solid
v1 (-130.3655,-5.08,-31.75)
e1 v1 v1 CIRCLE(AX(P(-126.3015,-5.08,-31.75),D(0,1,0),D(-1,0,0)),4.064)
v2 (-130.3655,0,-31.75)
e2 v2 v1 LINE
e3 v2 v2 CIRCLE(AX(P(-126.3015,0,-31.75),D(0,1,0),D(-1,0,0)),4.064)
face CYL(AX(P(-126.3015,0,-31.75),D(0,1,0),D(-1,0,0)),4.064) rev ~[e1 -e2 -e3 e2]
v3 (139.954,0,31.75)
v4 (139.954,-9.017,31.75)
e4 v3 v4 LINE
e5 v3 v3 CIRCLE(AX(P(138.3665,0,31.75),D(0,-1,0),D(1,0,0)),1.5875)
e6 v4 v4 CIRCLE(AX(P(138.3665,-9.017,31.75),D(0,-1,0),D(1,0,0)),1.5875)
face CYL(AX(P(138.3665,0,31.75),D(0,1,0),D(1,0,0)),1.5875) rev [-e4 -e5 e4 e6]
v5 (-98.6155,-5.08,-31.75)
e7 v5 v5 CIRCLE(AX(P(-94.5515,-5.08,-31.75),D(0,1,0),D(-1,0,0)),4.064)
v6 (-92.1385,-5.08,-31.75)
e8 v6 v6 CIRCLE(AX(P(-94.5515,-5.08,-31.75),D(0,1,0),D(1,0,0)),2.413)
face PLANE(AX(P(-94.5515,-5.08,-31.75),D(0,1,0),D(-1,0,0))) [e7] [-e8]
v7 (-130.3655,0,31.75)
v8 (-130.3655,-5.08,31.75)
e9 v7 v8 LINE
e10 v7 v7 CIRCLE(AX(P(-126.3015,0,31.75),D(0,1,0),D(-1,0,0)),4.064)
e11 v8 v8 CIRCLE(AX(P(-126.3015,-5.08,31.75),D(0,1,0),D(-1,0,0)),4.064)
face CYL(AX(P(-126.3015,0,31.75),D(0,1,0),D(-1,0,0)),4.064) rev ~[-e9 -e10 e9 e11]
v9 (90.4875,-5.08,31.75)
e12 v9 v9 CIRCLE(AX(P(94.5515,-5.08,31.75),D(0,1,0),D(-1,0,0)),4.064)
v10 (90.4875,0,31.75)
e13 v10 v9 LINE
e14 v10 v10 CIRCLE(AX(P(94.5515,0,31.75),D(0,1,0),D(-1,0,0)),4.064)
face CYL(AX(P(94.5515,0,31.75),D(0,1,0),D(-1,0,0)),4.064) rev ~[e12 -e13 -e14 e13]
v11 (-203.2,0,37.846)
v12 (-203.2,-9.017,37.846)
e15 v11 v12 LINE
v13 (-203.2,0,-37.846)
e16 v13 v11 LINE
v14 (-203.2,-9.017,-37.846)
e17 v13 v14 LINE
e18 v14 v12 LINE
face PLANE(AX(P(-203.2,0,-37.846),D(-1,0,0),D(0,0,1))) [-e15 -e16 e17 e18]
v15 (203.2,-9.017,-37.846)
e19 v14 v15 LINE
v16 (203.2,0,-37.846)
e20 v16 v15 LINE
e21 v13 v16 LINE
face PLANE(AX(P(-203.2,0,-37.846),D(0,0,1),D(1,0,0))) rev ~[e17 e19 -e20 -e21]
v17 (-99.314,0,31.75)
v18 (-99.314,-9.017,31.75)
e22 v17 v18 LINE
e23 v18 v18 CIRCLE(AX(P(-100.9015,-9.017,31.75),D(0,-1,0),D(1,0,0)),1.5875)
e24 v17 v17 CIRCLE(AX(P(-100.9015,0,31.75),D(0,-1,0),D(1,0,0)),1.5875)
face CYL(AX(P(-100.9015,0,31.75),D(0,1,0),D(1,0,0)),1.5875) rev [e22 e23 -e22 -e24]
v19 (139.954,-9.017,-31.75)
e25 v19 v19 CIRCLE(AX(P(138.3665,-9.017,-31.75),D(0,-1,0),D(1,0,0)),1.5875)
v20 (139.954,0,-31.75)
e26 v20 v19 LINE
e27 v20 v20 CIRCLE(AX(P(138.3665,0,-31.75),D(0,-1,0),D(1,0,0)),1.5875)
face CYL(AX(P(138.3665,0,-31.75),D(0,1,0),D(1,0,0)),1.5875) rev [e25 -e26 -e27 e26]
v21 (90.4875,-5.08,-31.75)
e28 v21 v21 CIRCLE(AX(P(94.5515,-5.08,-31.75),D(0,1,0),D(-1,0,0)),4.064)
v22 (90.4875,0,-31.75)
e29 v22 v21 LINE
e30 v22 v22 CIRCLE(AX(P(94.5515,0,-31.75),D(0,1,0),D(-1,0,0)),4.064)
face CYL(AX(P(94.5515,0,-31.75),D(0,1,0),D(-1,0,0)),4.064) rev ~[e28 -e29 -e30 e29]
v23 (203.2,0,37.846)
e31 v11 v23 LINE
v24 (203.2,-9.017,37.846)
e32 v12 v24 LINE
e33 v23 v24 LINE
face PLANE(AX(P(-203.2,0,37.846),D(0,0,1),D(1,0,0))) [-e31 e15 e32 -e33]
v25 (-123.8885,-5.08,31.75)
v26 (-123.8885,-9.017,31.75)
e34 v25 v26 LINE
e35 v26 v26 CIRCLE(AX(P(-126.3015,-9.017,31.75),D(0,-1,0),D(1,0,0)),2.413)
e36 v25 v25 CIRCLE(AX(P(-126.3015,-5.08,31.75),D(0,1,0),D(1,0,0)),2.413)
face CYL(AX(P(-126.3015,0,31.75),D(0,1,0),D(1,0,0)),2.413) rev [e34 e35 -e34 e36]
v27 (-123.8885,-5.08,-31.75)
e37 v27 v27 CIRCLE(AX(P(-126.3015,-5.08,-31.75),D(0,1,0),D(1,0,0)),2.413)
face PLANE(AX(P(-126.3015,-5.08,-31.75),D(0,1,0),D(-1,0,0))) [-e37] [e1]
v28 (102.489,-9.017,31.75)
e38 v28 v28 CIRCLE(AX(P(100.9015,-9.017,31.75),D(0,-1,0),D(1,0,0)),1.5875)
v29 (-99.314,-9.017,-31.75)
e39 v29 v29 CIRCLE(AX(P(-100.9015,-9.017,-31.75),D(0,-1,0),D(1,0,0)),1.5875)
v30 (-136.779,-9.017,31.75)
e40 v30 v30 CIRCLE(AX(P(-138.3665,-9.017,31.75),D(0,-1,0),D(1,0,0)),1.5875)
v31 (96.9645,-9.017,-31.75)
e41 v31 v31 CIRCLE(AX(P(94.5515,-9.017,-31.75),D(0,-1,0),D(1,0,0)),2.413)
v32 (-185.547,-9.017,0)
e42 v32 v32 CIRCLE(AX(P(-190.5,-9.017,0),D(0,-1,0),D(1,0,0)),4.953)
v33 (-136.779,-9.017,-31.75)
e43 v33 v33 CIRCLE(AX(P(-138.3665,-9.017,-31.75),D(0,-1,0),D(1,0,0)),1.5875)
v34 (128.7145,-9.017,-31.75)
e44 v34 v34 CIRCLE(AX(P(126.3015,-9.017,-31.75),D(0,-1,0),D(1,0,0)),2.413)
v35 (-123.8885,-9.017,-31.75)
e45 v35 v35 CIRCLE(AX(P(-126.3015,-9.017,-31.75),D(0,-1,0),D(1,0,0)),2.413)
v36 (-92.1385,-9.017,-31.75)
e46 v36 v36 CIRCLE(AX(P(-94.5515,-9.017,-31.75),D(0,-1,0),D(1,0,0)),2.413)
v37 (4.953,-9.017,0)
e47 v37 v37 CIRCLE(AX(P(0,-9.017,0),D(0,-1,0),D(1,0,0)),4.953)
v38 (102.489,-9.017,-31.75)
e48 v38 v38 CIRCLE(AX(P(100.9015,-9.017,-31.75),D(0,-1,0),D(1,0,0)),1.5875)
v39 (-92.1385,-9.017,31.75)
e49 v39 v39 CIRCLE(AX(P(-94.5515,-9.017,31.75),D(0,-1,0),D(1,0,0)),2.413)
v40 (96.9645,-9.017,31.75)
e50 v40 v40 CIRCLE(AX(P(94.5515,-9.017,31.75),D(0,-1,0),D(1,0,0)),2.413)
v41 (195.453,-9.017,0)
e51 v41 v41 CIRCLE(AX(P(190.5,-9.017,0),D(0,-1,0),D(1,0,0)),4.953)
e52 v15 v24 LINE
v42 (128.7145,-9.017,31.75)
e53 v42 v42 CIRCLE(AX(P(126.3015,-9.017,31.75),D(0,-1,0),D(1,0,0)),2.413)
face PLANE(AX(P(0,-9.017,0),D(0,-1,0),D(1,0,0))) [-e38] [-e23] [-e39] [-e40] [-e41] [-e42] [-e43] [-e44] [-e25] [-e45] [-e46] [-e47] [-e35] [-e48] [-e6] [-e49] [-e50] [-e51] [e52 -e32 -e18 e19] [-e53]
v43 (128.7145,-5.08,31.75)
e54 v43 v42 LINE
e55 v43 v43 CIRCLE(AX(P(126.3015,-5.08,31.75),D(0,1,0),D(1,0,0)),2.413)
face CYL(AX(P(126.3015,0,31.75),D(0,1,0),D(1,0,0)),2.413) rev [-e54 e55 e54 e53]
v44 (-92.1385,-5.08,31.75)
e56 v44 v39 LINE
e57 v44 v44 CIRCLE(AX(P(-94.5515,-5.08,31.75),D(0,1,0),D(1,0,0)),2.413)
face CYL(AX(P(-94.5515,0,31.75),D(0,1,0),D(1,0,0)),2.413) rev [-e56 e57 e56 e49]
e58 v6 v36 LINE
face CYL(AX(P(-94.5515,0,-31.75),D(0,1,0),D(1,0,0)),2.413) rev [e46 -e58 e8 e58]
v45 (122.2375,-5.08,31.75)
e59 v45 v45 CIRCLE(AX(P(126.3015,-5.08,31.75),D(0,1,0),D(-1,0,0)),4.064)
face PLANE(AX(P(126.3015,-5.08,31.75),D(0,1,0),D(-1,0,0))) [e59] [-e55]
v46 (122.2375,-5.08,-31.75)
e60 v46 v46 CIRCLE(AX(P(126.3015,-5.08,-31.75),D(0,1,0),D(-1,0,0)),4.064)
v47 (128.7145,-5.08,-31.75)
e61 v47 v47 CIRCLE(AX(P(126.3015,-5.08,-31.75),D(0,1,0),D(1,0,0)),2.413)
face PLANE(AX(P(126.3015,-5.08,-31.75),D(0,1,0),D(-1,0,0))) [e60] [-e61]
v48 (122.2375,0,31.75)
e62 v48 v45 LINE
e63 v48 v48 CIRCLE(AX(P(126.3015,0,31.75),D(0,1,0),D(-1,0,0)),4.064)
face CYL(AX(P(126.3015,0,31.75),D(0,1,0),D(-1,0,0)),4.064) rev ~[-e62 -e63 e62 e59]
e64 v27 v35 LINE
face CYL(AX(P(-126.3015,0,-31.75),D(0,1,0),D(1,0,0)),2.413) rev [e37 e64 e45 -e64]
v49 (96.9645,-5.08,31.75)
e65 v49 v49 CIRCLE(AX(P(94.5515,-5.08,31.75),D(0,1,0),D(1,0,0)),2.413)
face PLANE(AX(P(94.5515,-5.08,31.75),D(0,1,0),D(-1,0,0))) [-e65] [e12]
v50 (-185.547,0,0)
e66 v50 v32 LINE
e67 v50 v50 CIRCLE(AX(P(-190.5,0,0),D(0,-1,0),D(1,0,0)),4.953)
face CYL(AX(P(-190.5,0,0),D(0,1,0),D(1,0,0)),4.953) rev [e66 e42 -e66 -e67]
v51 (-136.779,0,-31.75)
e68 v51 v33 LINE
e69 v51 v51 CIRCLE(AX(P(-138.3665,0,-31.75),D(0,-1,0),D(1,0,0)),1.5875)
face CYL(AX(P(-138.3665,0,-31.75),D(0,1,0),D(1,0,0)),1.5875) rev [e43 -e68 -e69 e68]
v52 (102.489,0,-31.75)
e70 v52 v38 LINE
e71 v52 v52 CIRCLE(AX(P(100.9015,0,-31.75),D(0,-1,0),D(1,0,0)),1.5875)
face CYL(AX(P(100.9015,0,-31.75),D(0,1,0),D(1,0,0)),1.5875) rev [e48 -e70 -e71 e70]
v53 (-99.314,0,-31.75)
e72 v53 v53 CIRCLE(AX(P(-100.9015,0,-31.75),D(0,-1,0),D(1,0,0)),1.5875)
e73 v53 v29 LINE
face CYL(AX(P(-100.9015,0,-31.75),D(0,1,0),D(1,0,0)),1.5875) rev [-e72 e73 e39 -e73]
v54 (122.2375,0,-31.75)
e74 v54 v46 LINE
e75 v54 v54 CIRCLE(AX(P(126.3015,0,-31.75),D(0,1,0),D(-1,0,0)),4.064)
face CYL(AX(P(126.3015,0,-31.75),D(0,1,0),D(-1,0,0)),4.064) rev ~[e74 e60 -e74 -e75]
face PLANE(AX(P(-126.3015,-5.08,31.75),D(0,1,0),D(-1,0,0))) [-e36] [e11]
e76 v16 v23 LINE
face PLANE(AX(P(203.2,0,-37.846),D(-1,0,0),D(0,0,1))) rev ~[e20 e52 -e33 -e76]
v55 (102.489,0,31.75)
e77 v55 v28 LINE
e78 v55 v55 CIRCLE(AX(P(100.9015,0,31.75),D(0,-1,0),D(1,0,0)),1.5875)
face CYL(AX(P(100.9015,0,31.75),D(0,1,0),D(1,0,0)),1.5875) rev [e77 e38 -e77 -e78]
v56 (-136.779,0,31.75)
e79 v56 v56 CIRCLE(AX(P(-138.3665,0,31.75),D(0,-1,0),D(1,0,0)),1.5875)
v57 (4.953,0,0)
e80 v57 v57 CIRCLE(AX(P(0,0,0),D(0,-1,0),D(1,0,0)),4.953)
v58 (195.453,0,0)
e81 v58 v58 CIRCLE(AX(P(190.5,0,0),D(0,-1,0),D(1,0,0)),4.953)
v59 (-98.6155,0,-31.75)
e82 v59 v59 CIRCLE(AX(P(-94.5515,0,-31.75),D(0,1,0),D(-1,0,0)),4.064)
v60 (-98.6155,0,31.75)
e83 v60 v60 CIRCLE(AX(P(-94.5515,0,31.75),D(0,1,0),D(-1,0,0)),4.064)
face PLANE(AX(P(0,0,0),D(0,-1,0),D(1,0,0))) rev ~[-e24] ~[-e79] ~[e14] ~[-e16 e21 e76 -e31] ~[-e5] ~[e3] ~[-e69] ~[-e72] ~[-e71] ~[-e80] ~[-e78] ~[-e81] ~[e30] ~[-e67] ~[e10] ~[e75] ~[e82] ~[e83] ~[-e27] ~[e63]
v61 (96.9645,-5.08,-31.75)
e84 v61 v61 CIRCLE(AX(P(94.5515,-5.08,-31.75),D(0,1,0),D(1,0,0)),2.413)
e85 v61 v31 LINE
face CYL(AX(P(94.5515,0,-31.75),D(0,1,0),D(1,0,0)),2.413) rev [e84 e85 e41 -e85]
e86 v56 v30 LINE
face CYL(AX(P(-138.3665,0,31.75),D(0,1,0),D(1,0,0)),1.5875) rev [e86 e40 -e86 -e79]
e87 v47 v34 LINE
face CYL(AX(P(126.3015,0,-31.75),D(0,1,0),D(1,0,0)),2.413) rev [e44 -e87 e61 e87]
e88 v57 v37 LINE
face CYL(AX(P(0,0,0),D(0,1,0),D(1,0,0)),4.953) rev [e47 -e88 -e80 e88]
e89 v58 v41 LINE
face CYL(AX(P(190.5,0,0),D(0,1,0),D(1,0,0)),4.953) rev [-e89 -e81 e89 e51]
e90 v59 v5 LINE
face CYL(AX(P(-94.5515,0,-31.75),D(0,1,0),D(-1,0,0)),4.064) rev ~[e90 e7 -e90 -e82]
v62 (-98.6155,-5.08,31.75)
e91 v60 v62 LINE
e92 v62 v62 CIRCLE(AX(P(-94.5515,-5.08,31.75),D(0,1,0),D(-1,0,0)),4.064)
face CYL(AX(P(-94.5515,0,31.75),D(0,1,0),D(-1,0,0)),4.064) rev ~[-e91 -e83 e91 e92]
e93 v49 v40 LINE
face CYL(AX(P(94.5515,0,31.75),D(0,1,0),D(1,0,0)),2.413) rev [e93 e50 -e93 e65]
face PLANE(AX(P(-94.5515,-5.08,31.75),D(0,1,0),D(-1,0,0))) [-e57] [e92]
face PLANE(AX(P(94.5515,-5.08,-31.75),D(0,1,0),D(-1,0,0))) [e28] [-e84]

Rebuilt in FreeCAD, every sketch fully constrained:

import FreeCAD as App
import Part
import Sketcher
from FreeCAD import Vector
Q = App.Units.Quantity


def add_polygon(sketch, points):
    """Adds a closed chain of lines whose ends are joined by coincident constraints."""
    first, n = sketch.GeometryCount, len(points)
    for a, b in zip(points, points[1:] + points[:1]):
        sketch.addGeometry(Part.LineSegment(App.Vector(*a, 0), App.Vector(*b, 0)), False)
    for i in range(n):
        sketch.addConstraint(Sketcher.Constraint("Coincident", first + i, 2, first + (i + 1) % n, 1))

doc = App.newDocument("Part")
body = doc.addObject("PartDesign::Body", "Body")

# Sketch on XZ plane
sketch1 = body.newObject("Sketcher::SketchObject", "Sketch")
sketch1.AttachmentSupport = (doc.getObject("XZ_Plane"), [""])
sketch1.MapMode = "FlatFace"
add_polygon(sketch1, [(-203.2, 37.8), (-203.2, -37.8), (203.2, -37.8), (203.2, 37.8)])  # lines 0-3
sketch1.addGeometry(Part.Circle(Vector(-138.4, -31.8, 0), Vector(0, 0, 1), 1.6), False)  # 4
sketch1.addGeometry(Part.Circle(Vector(-126.3, -31.8, 0), Vector(0, 0, 1), 2.4), False)  # 5
sketch1.addGeometry(Part.Circle(Vector(-100.9, -31.8, 0), Vector(0, 0, 1), 1.6), False)  # 6
sketch1.addGeometry(Part.Circle(Vector(-94.6, -31.8, 0), Vector(0, 0, 1), 2.4), False)  # 7
sketch1.addGeometry(Part.Circle(Vector(94.6, -31.8, 0), Vector(0, 0, 1), 2.4), False)  # 8
sketch1.addGeometry(Part.Circle(Vector(100.9, -31.8, 0), Vector(0, 0, 1), 1.6), False)  # 9
sketch1.addGeometry(Part.Circle(Vector(126.3, -31.8, 0), Vector(0, 0, 1), 2.4), False)  # 10
sketch1.addGeometry(Part.Circle(Vector(138.4, -31.8, 0), Vector(0, 0, 1), 1.6), False)  # 11
sketch1.addGeometry(Part.Circle(Vector(-190.5, 0, 0), Vector(0, 0, 1), 5), False)  # 12
sketch1.addGeometry(Part.Circle(Vector(-138.4, 31.8, 0), Vector(0, 0, 1), 1.6), False)  # 13
sketch1.addGeometry(Part.Circle(Vector(-126.3, 31.8, 0), Vector(0, 0, 1), 2.4), False)  # 14
sketch1.addGeometry(Part.Circle(Vector(-100.9, 31.8, 0), Vector(0, 0, 1), 1.6), False)  # 15
sketch1.addGeometry(Part.Circle(Vector(-94.6, 31.8, 0), Vector(0, 0, 1), 2.4), False)  # 16
sketch1.addGeometry(Part.Circle(Vector(0, 0, 0), Vector(0, 0, 1), 5), False)  # 17
sketch1.addGeometry(Part.Circle(Vector(190.5, 0, 0), Vector(0, 0, 1), 5), False)  # 18
sketch1.addGeometry(Part.Circle(Vector(94.6, 31.8, 0), Vector(0, 0, 1), 2.4), False)  # 19
sketch1.addGeometry(Part.Circle(Vector(100.9, 31.8, 0), Vector(0, 0, 1), 1.6), False)  # 20
sketch1.addGeometry(Part.Circle(Vector(126.3, 31.8, 0), Vector(0, 0, 1), 2.4), False)  # 21
sketch1.addGeometry(Part.Circle(Vector(138.4, 31.8, 0), Vector(0, 0, 1), 1.6), False)  # 22
sketch1.addConstraint([
    Sketcher.Constraint("Vertical", 0),
    Sketcher.Constraint("Horizontal", 1),
    Sketcher.Constraint("Vertical", 2),
    Sketcher.Constraint("Horizontal", 3),
    Sketcher.Constraint("Coincident", 17, 3, -1, 1),
    Sketcher.Constraint("Equal", 4, 6),
    Sketcher.Constraint("Equal", 5, 7),
    Sketcher.Constraint("Equal", 7, 8),
    Sketcher.Constraint("Equal", 6, 9),
    Sketcher.Constraint("Equal", 8, 10),
    Sketcher.Constraint("Equal", 9, 11),
    Sketcher.Constraint("Equal", 11, 13),
    Sketcher.Constraint("Equal", 10, 14),
    Sketcher.Constraint("Equal", 13, 15),
    Sketcher.Constraint("Equal", 14, 16),
    Sketcher.Constraint("Equal", 12, 17),
    Sketcher.Constraint("Equal", 17, 18),
    Sketcher.Constraint("Equal", 16, 19),
    Sketcher.Constraint("Equal", 15, 20),
    Sketcher.Constraint("Equal", 19, 21),
    Sketcher.Constraint("Equal", 20, 22),
    Sketcher.Constraint("Symmetric", 11, 3, 13, 3, -1, 1),
    Sketcher.Constraint("Symmetric", 10, 3, 14, 3, -1, 1),
    Sketcher.Constraint("Symmetric", 9, 3, 15, 3, -1, 1),
    Sketcher.Constraint("Symmetric", 8, 3, 16, 3, -1, 1),
    Sketcher.Constraint("Symmetric", 12, 3, 18, 3, -1, 1),
    Sketcher.Constraint("Symmetric", 7, 3, 19, 3, -1, 1),
    Sketcher.Constraint("Symmetric", 6, 3, 20, 3, -1, 1),
    Sketcher.Constraint("Symmetric", 5, 3, 21, 3, -1, 1),
    Sketcher.Constraint("Symmetric", 4, 3, 22, 3, -1, 1),
    Sketcher.Constraint("Symmetric", 0, 2, 2, 2, -1, 1),
    Sketcher.Constraint("Symmetric", 7, 3, 8, 3, -2),
    Sketcher.Constraint("Symmetric", 6, 3, 9, 3, -2),
    Sketcher.Constraint("Symmetric", 5, 3, 10, 3, -2),
    Sketcher.Constraint("Symmetric", 4, 3, 11, 3, -2),
    Sketcher.Constraint("PointOnObject", 12, 3, -1),
    Sketcher.Constraint("Horizontal", 4, 3, 5, 3),
    Sketcher.Constraint("Horizontal", 5, 3, 6, 3),
    Sketcher.Constraint("Horizontal", 6, 3, 7, 3),
    Sketcher.Constraint("Diameter", 5, Q("0.19 in")),
    Sketcher.Constraint("Diameter", 12, Q("0.39 in")),
    Sketcher.Constraint("DistanceX", 1, 1, 1, 2, Q("16 in")),
    Sketcher.Constraint("Diameter", 4, Q("0.125 in")),
    Sketcher.Constraint("DistanceX", 5, 3, 6, 3, Q("1 in")),
    Sketcher.Constraint("DistanceY", 0, 2, 0, 1, Q("2.98 in")),
    Sketcher.Constraint("DistanceX", 12, 3, -1, 1, Q("7.5 in")),
    Sketcher.Constraint("DistanceY", 4, 3, 13, 3, Q("2.5 in")),
    Sketcher.Constraint("DistanceX", 6, 3, 7, 3, Q("0.25 in")),
    Sketcher.Constraint("DistanceX", 4, 3, 8, 3, Q("9.17 in")),
    Sketcher.Constraint("DistanceX", 4, 3, 5, 3, Q("0.475 in")),
])
pad1 = body.newObject("PartDesign::Pad", "Pad")
pad1.Profile = sketch1
pad1.Length = Q("0.355 in")

# Sketch on XZ plane
sketch2 = body.newObject("Sketcher::SketchObject", "Sketch001")
sketch2.AttachmentSupport = (doc.getObject("XZ_Plane"), [""])
sketch2.MapMode = "FlatFace"
sketch2.addGeometry([
    Part.Circle(Vector(-126.3, 31.8, 0), Vector(0, 0, 1), 4.1),  # 0
    Part.Circle(Vector(-94.6, 31.8, 0), Vector(0, 0, 1), 4.1),  # 1
    Part.Circle(Vector(-126.3, -31.8, 0), Vector(0, 0, 1), 4.1),  # 2
    Part.Circle(Vector(-94.6, -31.8, 0), Vector(0, 0, 1), 4.1),  # 3
    Part.Circle(Vector(126.3, 31.8, 0), Vector(0, 0, 1), 4.1),  # 4
    Part.Circle(Vector(94.6, 31.8, 0), Vector(0, 0, 1), 4.1),  # 5
    Part.Circle(Vector(94.6, -31.8, 0), Vector(0, 0, 1), 4.1),  # 6
    Part.Circle(Vector(126.3, -31.8, 0), Vector(0, 0, 1), 4.1),  # 7
], False)
sketch2.addConstraint([
    Sketcher.Constraint("Equal", 0, 1),
    Sketcher.Constraint("Equal", 1, 2),
    Sketcher.Constraint("Equal", 2, 3),
    Sketcher.Constraint("Equal", 3, 4),
    Sketcher.Constraint("Equal", 4, 5),
    Sketcher.Constraint("Equal", 5, 6),
    Sketcher.Constraint("Equal", 6, 7),
    Sketcher.Constraint("Symmetric", 2, 3, 4, 3, -1, 1),
    Sketcher.Constraint("Symmetric", 3, 3, 5, 3, -1, 1),
    Sketcher.Constraint("Symmetric", 1, 3, 6, 3, -1, 1),
    Sketcher.Constraint("Symmetric", 0, 3, 7, 3, -1, 1),
    Sketcher.Constraint("Symmetric", 0, 3, 4, 3, -2),
    Sketcher.Constraint("Symmetric", 1, 3, 5, 3, -2),
    Sketcher.Constraint("Horizontal", 0, 3, 1, 3),
    Sketcher.Constraint("Diameter", 0, Q("0.32 in")),
    Sketcher.Constraint("DistanceY", 2, 3, 0, 3, Q("2.5 in")),
    Sketcher.Constraint("DistanceX", 0, 3, 1, 3, Q("1.25 in")),
    Sketcher.Constraint("DistanceX", 1, 3, 4, 3, Q("8.695 in")),
])
pocket1 = body.newObject("PartDesign::Pocket", "Pocket")
pocket1.Profile = sketch2
pocket1.Length = Q("0.2 in")
pocket1.Reversed = True

doc.recompute()
